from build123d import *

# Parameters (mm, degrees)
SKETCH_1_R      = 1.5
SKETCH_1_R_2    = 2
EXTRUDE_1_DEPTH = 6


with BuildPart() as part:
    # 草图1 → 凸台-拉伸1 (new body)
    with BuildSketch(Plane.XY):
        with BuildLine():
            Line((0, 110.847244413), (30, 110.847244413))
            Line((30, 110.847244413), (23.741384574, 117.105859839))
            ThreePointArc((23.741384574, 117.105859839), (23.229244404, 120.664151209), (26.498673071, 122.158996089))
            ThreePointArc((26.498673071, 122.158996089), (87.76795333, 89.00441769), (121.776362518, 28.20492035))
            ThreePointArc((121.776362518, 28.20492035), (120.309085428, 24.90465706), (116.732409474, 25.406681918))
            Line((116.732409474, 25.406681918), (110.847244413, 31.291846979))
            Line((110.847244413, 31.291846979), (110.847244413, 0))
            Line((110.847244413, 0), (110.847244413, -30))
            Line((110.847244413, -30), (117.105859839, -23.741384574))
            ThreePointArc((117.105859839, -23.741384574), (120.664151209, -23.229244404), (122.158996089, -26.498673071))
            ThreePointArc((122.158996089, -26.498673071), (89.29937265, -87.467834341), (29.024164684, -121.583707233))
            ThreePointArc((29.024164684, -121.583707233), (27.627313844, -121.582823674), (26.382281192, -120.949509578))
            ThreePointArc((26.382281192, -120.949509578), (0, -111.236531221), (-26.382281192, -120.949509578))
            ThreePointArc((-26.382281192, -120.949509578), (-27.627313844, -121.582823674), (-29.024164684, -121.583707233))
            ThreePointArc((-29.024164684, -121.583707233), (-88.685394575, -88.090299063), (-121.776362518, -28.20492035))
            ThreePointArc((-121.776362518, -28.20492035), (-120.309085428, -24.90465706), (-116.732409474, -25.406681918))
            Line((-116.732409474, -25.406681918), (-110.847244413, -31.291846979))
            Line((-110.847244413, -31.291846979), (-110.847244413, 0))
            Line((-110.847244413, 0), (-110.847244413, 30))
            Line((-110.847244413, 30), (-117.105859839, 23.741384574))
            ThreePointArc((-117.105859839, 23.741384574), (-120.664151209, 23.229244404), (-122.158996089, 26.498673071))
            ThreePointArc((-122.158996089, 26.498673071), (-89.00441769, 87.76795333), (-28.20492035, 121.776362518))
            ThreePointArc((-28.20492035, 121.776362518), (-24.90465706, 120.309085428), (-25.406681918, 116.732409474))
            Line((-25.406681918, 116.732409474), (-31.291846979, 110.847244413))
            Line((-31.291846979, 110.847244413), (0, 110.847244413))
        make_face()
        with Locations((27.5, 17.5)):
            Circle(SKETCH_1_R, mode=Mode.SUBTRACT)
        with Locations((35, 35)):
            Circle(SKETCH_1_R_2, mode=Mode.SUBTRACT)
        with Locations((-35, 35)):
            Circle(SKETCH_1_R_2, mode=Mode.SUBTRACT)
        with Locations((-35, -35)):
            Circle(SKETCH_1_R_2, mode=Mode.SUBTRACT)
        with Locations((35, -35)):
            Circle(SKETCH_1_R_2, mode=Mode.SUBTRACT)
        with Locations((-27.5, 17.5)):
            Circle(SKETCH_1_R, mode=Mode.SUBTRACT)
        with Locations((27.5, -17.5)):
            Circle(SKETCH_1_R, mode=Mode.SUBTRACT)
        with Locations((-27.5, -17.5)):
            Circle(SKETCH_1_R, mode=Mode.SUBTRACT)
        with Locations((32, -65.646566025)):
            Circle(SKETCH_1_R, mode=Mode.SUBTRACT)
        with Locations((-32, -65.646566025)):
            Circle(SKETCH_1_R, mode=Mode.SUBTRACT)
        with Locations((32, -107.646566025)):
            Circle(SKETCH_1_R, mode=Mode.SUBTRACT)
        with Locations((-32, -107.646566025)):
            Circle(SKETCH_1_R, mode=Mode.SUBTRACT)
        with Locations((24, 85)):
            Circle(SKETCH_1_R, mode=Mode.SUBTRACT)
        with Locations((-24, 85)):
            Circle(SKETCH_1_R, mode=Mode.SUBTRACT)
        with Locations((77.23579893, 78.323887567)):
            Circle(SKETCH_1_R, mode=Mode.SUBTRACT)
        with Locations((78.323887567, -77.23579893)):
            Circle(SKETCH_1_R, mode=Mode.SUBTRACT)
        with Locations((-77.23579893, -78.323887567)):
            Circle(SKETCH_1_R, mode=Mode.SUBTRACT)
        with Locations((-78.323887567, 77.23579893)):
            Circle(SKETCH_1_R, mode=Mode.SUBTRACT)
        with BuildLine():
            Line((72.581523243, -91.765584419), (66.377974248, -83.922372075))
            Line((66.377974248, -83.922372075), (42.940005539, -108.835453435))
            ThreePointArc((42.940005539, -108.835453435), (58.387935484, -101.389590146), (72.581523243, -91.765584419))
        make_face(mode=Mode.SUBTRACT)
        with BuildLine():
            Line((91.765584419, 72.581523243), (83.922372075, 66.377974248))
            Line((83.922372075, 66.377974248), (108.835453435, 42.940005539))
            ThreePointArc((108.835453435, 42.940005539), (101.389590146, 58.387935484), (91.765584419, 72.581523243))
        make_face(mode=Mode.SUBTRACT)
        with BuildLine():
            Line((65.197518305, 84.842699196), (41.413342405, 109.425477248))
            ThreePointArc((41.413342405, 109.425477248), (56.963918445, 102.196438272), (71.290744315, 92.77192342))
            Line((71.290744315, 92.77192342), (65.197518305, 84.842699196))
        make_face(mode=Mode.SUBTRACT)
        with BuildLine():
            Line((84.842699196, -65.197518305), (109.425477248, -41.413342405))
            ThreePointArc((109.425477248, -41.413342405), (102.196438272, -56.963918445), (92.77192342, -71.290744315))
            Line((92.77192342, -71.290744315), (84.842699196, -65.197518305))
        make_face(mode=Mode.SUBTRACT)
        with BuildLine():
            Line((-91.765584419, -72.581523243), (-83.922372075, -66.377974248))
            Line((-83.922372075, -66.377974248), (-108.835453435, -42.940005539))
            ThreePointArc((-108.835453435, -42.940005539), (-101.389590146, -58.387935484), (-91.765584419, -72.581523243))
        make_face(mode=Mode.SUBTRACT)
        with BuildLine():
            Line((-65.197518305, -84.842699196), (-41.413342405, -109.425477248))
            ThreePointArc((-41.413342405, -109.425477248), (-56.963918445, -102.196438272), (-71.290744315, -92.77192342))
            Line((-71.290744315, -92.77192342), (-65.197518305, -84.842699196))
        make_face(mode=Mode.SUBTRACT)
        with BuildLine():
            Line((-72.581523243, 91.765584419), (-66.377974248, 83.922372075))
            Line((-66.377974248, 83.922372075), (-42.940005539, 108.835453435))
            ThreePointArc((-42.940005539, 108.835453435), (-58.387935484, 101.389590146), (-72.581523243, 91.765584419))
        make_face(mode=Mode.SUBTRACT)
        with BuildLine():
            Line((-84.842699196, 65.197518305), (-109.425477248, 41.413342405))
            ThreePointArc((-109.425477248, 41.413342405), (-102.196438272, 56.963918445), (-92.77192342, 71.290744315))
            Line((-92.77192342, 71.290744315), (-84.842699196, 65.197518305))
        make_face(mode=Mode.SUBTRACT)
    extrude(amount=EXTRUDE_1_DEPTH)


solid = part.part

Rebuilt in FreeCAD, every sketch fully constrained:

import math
import FreeCAD as App
import Part
import Sketcher
from FreeCAD import Vector
Q = App.Units.Quantity

doc = App.newDocument("Part")
body = doc.addObject("PartDesign::Body", "Body")

# Sketch on XY plane
sketch1 = body.newObject("Sketcher::SketchObject", "Sketch")
sketch1.AttachmentSupport = (doc.getObject("XY_Plane"), [""])
sketch1.MapMode = "FlatFace"
sketch1.addGeometry(Part.LineSegment(Vector(23.7, 117.1, 0), Vector(30, 110.8, 0)), False)
sketch1.addGeometry(Part.LineSegment(Vector(30, 110.8, 0), Vector(-31.3, 110.8, 0)), False)
sketch1.addGeometry(Part.LineSegment(Vector(-31.3, 110.8, 0), Vector(-25.4, 116.7, 0)), False)
sketch1.addGeometry(Part.ArcOfCircle(Part.Circle(Vector(-27.5, 118.9, 0), Vector(0, 0, 1), 3), math.radians(-45), math.radians(103)), False)
sketch1.addGeometry(Part.ArcOfCircle(Part.Circle(Vector(0, 0, 0), Vector(0, 0, 1), 125), math.radians(103), math.radians(168)), False)
sketch1.addGeometry(Part.ArcOfCircle(Part.Circle(Vector(-119.2, 25.9, 0), Vector(0, 0, 1), 3), math.radians(168), math.radians(315)), False)
sketch1.addGeometry(Part.LineSegment(Vector(-117.1, 23.7, 0), Vector(-110.8, 30, 0)), False)
sketch1.addGeometry(Part.LineSegment(Vector(-110.8, 30, 0), Vector(-110.8, -31.3, 0)), False)
sketch1.addGeometry(Part.LineSegment(Vector(-110.8, -31.3, 0), Vector(-116.7, -25.4, 0)), False)
sketch1.addGeometry(Part.ArcOfCircle(Part.Circle(Vector(-118.9, -27.5, 0), Vector(0, 0, 1), 3), math.radians(45), math.radians(193)), False)
sketch1.addGeometry(Part.ArcOfCircle(Part.Circle(Vector(0, 0, 0), Vector(0, 0, 1), 125), math.radians(-167), math.radians(-103)), False)
sketch1.addGeometry(Part.ArcOfCircle(Part.Circle(Vector(-28.3, -118.7, 0), Vector(0, 0, 1), 3), math.radians(-103), math.radians(-50)), False)
sketch1.addGeometry(Part.ArcOfCircle(Part.Circle(Vector(0, -151.9, 0), Vector(0, 0, 1), 40.7), math.radians(50), math.radians(130)), False)
sketch1.addGeometry(Part.ArcOfCircle(Part.Circle(Vector(28.3, -118.7, 0), Vector(0, 0, 1), 3), math.radians(-130), math.radians(-77)), False)
sketch1.addGeometry(Part.ArcOfCircle(Part.Circle(Vector(0, 0, 0), Vector(0, 0, 1), 125), math.radians(-77), math.radians(-12)), False)
sketch1.addGeometry(Part.ArcOfCircle(Part.Circle(Vector(119.2, -25.9, 0), Vector(0, 0, 1), 3), math.radians(-12), math.radians(135)), False)
sketch1.addGeometry(Part.LineSegment(Vector(117.1, -23.7, 0), Vector(110.8, -30, 0)), False)
sketch1.addGeometry(Part.LineSegment(Vector(110.8, -30, 0), Vector(110.8, 31.3, 0)), False)
sketch1.addGeometry(Part.LineSegment(Vector(110.8, 31.3, 0), Vector(116.7, 25.4, 0)), False)
sketch1.addGeometry(Part.ArcOfCircle(Part.Circle(Vector(118.9, 27.5, 0), Vector(0, 0, 1), 3), math.radians(-135), math.radians(13)), False)
sketch1.addGeometry(Part.ArcOfCircle(Part.Circle(Vector(0, 0, 0), Vector(0, 0, 1), 125), math.radians(13), math.radians(78)), False)
sketch1.addGeometry(Part.ArcOfCircle(Part.Circle(Vector(25.9, 119.2, 0), Vector(0, 0, 1), 3), math.radians(78), math.radians(225)), False)
sketch1.addGeometry(Part.ArcOfCircle(Part.Circle(Vector(0, 0, 0), Vector(0, 0, 1), 117), math.radians(-68.47), math.radians(-51.66)), False)
sketch1.addGeometry(Part.LineSegment(Vector(42.9, -108.8, 0), Vector(66.4, -83.9, 0)), False)
sketch1.addGeometry(Part.LineSegment(Vector(66.4, -83.9, 0), Vector(72.6, -91.8, 0)), False)
sketch1.addGeometry(Part.LineSegment(Vector(84.8, -65.2, 0), Vector(109.4, -41.4, 0)), False)
sketch1.addGeometry(Part.ArcOfCircle(Part.Circle(Vector(0, 0, 0), Vector(0, 0, 1), 117), math.radians(-37.54), math.radians(-20.73)), False)
sketch1.addGeometry(Part.LineSegment(Vector(92.8, -71.3, 0), Vector(84.8, -65.2, 0)), False)
sketch1.addGeometry(Part.Circle(Vector(78.3, -77.2, 0), Vector(0, 0, 1), 1.5), False)
sketch1.addGeometry(Part.Circle(Vector(32, -107.6, 0), Vector(0, 0, 1), 1.5), False)
sketch1.addGeometry(Part.Circle(Vector(32, -65.6, 0), Vector(0, 0, 1), 1.5), False)
sketch1.addGeometry(Part.Circle(Vector(35, -35, 0), Vector(0, 0, 1), 2), False)
sketch1.addGeometry(Part.Circle(Vector(27.5, -17.5, 0), Vector(0, 0, 1), 1.5), False)
sketch1.addGeometry(Part.Circle(Vector(-32, -107.6, 0), Vector(0, 0, 1), 1.5), False)
sketch1.addGeometry(Part.Circle(Vector(-32, -65.6, 0), Vector(0, 0, 1), 1.5), False)
sketch1.addGeometry(Part.LineSegment(Vector(-65.2, -84.8, 0), Vector(-41.4, -109.4, 0)), False)
sketch1.addGeometry(Part.ArcOfCircle(Part.Circle(Vector(0, 0, 0), Vector(0, 0, 1), 117), math.radians(-127.54), math.radians(-110.73)), False)
sketch1.addGeometry(Part.LineSegment(Vector(-71.3, -92.8, 0), Vector(-65.2, -84.8, 0)), False)
sketch1.addGeometry(Part.Circle(Vector(-77.2, -78.3, 0), Vector(0, 0, 1), 1.5), False)
sketch1.addGeometry(Part.ArcOfCircle(Part.Circle(Vector(0, 0, 0), Vector(0, 0, 1), 117), math.radians(-158.47), math.radians(-141.66)), False)
sketch1.addGeometry(Part.LineSegment(Vector(-108.8, -42.9, 0), Vector(-83.9, -66.4, 0)), False)
sketch1.addGeometry(Part.LineSegment(Vector(-83.9, -66.4, 0), Vector(-91.8, -72.6, 0)), False)
sketch1.addGeometry(Part.Circle(Vector(-35, -35, 0), Vector(0, 0, 1), 2), False)
sketch1.addGeometry(Part.Circle(Vector(-27.5, -17.5, 0), Vector(0, 0, 1), 1.5), False)
sketch1.addGeometry(Part.Circle(Vector(27.5, 17.5, 0), Vector(0, 0, 1), 1.5), False)
sketch1.addGeometry(Part.Circle(Vector(35, 35, 0), Vector(0, 0, 1), 2), False)
sketch1.addGeometry(Part.ArcOfCircle(Part.Circle(Vector(0, 0, 0), Vector(0, 0, 1), 117), math.radians(21.53), math.radians(38.34)), False)
sketch1.addGeometry(Part.LineSegment(Vector(108.8, 42.9, 0), Vector(83.9, 66.4, 0)), False)
sketch1.addGeometry(Part.LineSegment(Vector(83.9, 66.4, 0), Vector(91.8, 72.6, 0)), False)
sketch1.addGeometry(Part.Circle(Vector(77.2, 78.3, 0), Vector(0, 0, 1), 1.5), False)
sketch1.addGeometry(Part.LineSegment(Vector(65.2, 84.8, 0), Vector(41.4, 109.4, 0)), False)
sketch1.addGeometry(Part.ArcOfCircle(Part.Circle(Vector(0, 0, 0), Vector(0, 0, 1), 117), math.radians(52.46), math.radians(69.27)), False)
sketch1.addGeometry(Part.LineSegment(Vector(71.3, 92.8, 0), Vector(65.2, 84.8, 0)), False)
sketch1.addGeometry(Part.Circle(Vector(24, 85, 0), Vector(0, 0, 1), 1.5), False)
sketch1.addGeometry(Part.Circle(Vector(-27.5, 17.5, 0), Vector(0, 0, 1), 1.5), False)
sketch1.addGeometry(Part.Circle(Vector(-35, 35, 0), Vector(0, 0, 1), 2), False)
sketch1.addGeometry(Part.Circle(Vector(-24, 85, 0), Vector(0, 0, 1), 1.5), False)
sketch1.addGeometry(Part.Circle(Vector(-78.3, 77.2, 0), Vector(0, 0, 1), 1.5), False)
sketch1.addGeometry(Part.LineSegment(Vector(-84.8, 65.2, 0), Vector(-109.4, 41.4, 0)), False)
sketch1.addGeometry(Part.ArcOfCircle(Part.Circle(Vector(0, 0, 0), Vector(0, 0, 1), 117), math.radians(142.46), math.radians(159.27)), False)
sketch1.addGeometry(Part.LineSegment(Vector(-92.8, 71.3, 0), Vector(-84.8, 65.2, 0)), False)
sketch1.addGeometry(Part.ArcOfCircle(Part.Circle(Vector(0, 0, 0), Vector(0, 0, 1), 117), math.radians(111.53), math.radians(128.34)), False)
sketch1.addGeometry(Part.LineSegment(Vector(-42.9, 108.8, 0), Vector(-66.4, 83.9, 0)), False)
sketch1.addGeometry(Part.LineSegment(Vector(-66.4, 83.9, 0), Vector(-72.6, 91.8, 0)), False)
sketch1.addConstraint(Sketcher.Constraint("Coincident", 0, 2, 1, 1))
sketch1.addConstraint(Sketcher.Constraint("Coincident", 1, 2, 2, 1))
sketch1.addConstraint(Sketcher.Constraint("Tangent", 2, 2, 3, 1))
sketch1.addConstraint(Sketcher.Constraint("Tangent", 3, 2, 4, 1))
sketch1.addConstraint(Sketcher.Constraint("Tangent", 4, 2, 5, 1))
sketch1.addConstraint(Sketcher.Constraint("Tangent", 5, 2, 6, 1))
sketch1.addConstraint(Sketcher.Constraint("Coincident", 6, 2, 7, 1))
sketch1.addConstraint(Sketcher.Constraint("Coincident", 7, 2, 8, 1))
sketch1.addConstraint(Sketcher.Constraint("Tangent", 8, 2, 9, 1))
sketch1.addConstraint(Sketcher.Constraint("Tangent", 9, 2, 10, 1))
sketch1.addConstraint(Sketcher.Constraint("Tangent", 10, 2, 11, 1))
sketch1.addConstraint(Sketcher.Constraint("Tangent", 11, 2, 12, 2))
sketch1.addConstraint(Sketcher.Constraint("Tangent", 12, 1, 13, 1))
sketch1.addConstraint(Sketcher.Constraint("Tangent", 13, 2, 14, 1))
sketch1.addConstraint(Sketcher.Constraint("Tangent", 14, 2, 15, 1))
sketch1.addConstraint(Sketcher.Constraint("Tangent", 15, 2, 16, 1))
sketch1.addConstraint(Sketcher.Constraint("Coincident", 16, 2, 17, 1))
sketch1.addConstraint(Sketcher.Constraint("Coincident", 17, 2, 18, 1))
sketch1.addConstraint(Sketcher.Constraint("Tangent", 18, 2, 19, 1))
sketch1.addConstraint(Sketcher.Constraint("Tangent", 19, 2, 20, 1))
sketch1.addConstraint(Sketcher.Constraint("Tangent", 20, 2, 21, 1))
sketch1.addConstraint(Sketcher.Constraint("Tangent", 21, 2, 0, 1))
sketch1.addConstraint(Sketcher.Constraint("Coincident", 22, 1, 23, 1))
sketch1.addConstraint(Sketcher.Constraint("Coincident", 23, 2, 24, 1))
sketch1.addConstraint(Sketcher.Constraint("Coincident", 24, 2, 22, 2))
sketch1.addConstraint(Sketcher.Constraint("Coincident", 25, 2, 26, 2))
sketch1.addConstraint(Sketcher.Constraint("Coincident", 26, 1, 27, 1))
sketch1.addConstraint(Sketcher.Constraint("Coincident", 27, 2, 25, 1))
sketch1.addConstraint(Sketcher.Constraint("Coincident", 35, 2, 36, 2))
sketch1.addConstraint(Sketcher.Constraint("Coincident", 36, 1, 37, 1))
sketch1.addConstraint(Sketcher.Constraint("Coincident", 37, 2, 35, 1))
sketch1.addConstraint(Sketcher.Constraint("Coincident", 39, 1, 40, 1))
sketch1.addConstraint(Sketcher.Constraint("Coincident", 40, 2, 41, 1))
sketch1.addConstraint(Sketcher.Constraint("Coincident", 41, 2, 39, 2))
sketch1.addConstraint(Sketcher.Constraint("Coincident", 46, 1, 47, 1))
sketch1.addConstraint(Sketcher.Constraint("Coincident", 47, 2, 48, 1))
sketch1.addConstraint(Sketcher.Constraint("Coincident", 48, 2, 46, 2))
sketch1.addConstraint(Sketcher.Constraint("Coincident", 50, 2, 51, 2))
sketch1.addConstraint(Sketcher.Constraint("Coincident", 51, 1, 52, 1))
sketch1.addConstraint(Sketcher.Constraint("Coincident", 52, 2, 50, 1))
sketch1.addConstraint(Sketcher.Constraint("Coincident", 58, 2, 59, 2))
sketch1.addConstraint(Sketcher.Constraint("Coincident", 59, 1, 60, 1))
sketch1.addConstraint(Sketcher.Constraint("Coincident", 60, 2, 58, 1))
sketch1.addConstraint(Sketcher.Constraint("Coincident", 61, 1, 62, 1))
sketch1.addConstraint(Sketcher.Constraint("Coincident", 62, 2, 63, 1))
sketch1.addConstraint(Sketcher.Constraint("Coincident", 63, 2, 61, 2))
sketch1.addConstraint(Sketcher.Constraint("Horizontal", 1))
sketch1.addConstraint(Sketcher.Constraint("Vertical", 7))
sketch1.addConstraint(Sketcher.Constraint("Vertical", 17))
sketch1.addConstraint(Sketcher.Constraint("Coincident", 4, 3, -1, 1))
sketch1.addConstraint(Sketcher.Constraint("Coincident", 10, 3, -1, 1))
sketch1.addConstraint(Sketcher.Constraint("Coincident", 14, 3, -1, 1))
sketch1.addConstraint(Sketcher.Constraint("Coincident", 20, 3, -1, 1))
sketch1.addConstraint(Sketcher.Constraint("Coincident", 22, 3, -1, 1))
sketch1.addConstraint(Sketcher.Constraint("Coincident", 26, 3, -1, 1))
sketch1.addConstraint(Sketcher.Constraint("Coincident", 36, 3, -1, 1))
sketch1.addConstraint(Sketcher.Constraint("Coincident", 39, 3, -1, 1))
sketch1.addConstraint(Sketcher.Constraint("Coincident", 46, 3, -1, 1))
sketch1.addConstraint(Sketcher.Constraint("Coincident", 51, 3, -1, 1))
sketch1.addConstraint(Sketcher.Constraint("Coincident", 59, 3, -1, 1))
sketch1.addConstraint(Sketcher.Constraint("Coincident", 61, 3, -1, 1))
sketch1.addConstraint(Sketcher.Constraint("Equal", 3, 5))
sketch1.addConstraint(Sketcher.Constraint("Equal", 5, 9))
sketch1.addConstraint(Sketcher.Constraint("Equal", 4, 10))
sketch1.addConstraint(Sketcher.Constraint("Equal", 9, 11))
sketch1.addConstraint(Sketcher.Constraint("Equal", 11, 13))
sketch1.addConstraint(Sketcher.Constraint("Equal", 10, 14))
sketch1.addConstraint(Sketcher.Constraint("Equal", 13, 15))
sketch1.addConstraint(Sketcher.Constraint("Equal", 15, 19))
sketch1.addConstraint(Sketcher.Constraint("Equal", 14, 20))
sketch1.addConstraint(Sketcher.Constraint("Equal", 19, 21))
sketch1.addConstraint(Sketcher.Constraint("Equal", 22, 26))
sketch1.addConstraint(Sketcher.Constraint("Equal", 28, 29))
sketch1.addConstraint(Sketcher.Constraint("Equal", 29, 30))
sketch1.addConstraint(Sketcher.Constraint("Equal", 30, 32))
sketch1.addConstraint(Sketcher.Constraint("Equal", 32, 33))
sketch1.addConstraint(Sketcher.Constraint("Equal", 33, 34))
sketch1.addConstraint(Sketcher.Constraint("Equal", 26, 36))
sketch1.addConstraint(Sketcher.Constraint("Equal", 34, 38))
sketch1.addConstraint(Sketcher.Constraint("Equal", 36, 39))
sketch1.addConstraint(Sketcher.Constraint("Equal", 31, 42))
sketch1.addConstraint(Sketcher.Constraint("Equal", 38, 43))
sketch1.addConstraint(Sketcher.Constraint("Equal", 43, 44))
sketch1.addConstraint(Sketcher.Constraint("Equal", 42, 45))
sketch1.addConstraint(Sketcher.Constraint("Equal", 39, 46))
sketch1.addConstraint(Sketcher.Constraint("Equal", 44, 49))
sketch1.addConstraint(Sketcher.Constraint("Equal", 46, 51))
sketch1.addConstraint(Sketcher.Constraint("Equal", 49, 53))
sketch1.addConstraint(Sketcher.Constraint("Equal", 53, 54))
sketch1.addConstraint(Sketcher.Constraint("Equal", 45, 55))
sketch1.addConstraint(Sketcher.Constraint("Equal", 54, 56))
sketch1.addConstraint(Sketcher.Constraint("Equal", 56, 57))
sketch1.addConstraint(Sketcher.Constraint("Equal", 51, 59))
sketch1.addConstraint(Sketcher.Constraint("Equal", 59, 61))
sketch1.addConstraint(Sketcher.Constraint("Symmetric", 43, 3, 44, 3, -1, 1))
sketch1.addConstraint(Sketcher.Constraint("Symmetric", 42, 3, 45, 3, -1, 1))
sketch1.addConstraint(Sketcher.Constraint("Symmetric", 38, 3, 49, 3, -1, 1))
sketch1.addConstraint(Sketcher.Constraint("Symmetric", 32, 3, 54, 3, -1, 1))
sketch1.addConstraint(Sketcher.Constraint("Symmetric", 31, 3, 55, 3, -1, 1))
sketch1.addConstraint(Sketcher.Constraint("Symmetric", 28, 3, 57, 3, -1, 1))
sketch1.addConstraint(Sketcher.Constraint("Symmetric", 5, 2, 15, 2, -1, 1))
sketch1.addConstraint(Sketcher.Constraint("Symmetric", 7, 2, 17, 2, -1, 1))
sketch1.addConstraint(Sketcher.Constraint("Symmetric", 40, 2, 47, 2, -1, 1))
sketch1.addConstraint(Sketcher.Constraint("Symmetric", 37, 2, 52, 2, -1, 1))
sketch1.addConstraint(Sketcher.Constraint("Symmetric", 27, 2, 60, 2, -1, 1))
sketch1.addConstraint(Sketcher.Constraint("Symmetric", 23, 2, 62, 2, -1, 1))
sketch1.addConstraint(Sketcher.Constraint("Symmetric", 29, 3, 33, 3, -2))
sketch1.addConstraint(Sketcher.Constraint("Symmetric", 30, 3, 34, 3, -2))
sketch1.addConstraint(Sketcher.Constraint("Symmetric", 31, 3, 42, 3, -2))
sketch1.addConstraint(Sketcher.Constraint("Symmetric", 32, 3, 43, 3, -2))
sketch1.addConstraint(Sketcher.Constraint("Symmetric", 53, 3, 56, 3, -2))
sketch1.addConstraint(Sketcher.Constraint("PointOnObject", 12, 3, -2))
sketch1.addConstraint(Sketcher.Constraint("Perpendicular", 0, 2))
sketch1.addConstraint(Sketcher.Constraint("Parallel", 2, 6))
sketch1.addConstraint(Sketcher.Constraint("Perpendicular", 6, 8))
sketch1.addConstraint(Sketcher.Constraint("Perpendicular", 16, 18))
sketch1.addConstraint(Sketcher.Constraint("Perpendicular", 25, 35))
sketch1.addConstraint(Sketcher.Constraint("Perpendicular", 27, 37))
sketch1.addConstraint(Sketcher.Constraint("Perpendicular", 23, 40))
sketch1.addConstraint(Sketcher.Constraint("Perpendicular", 24, 41))
sketch1.addConstraint(Sketcher.Constraint("Parallel", 40, 47))
sketch1.addConstraint(Sketcher.Constraint("Parallel", 41, 48))
sketch1.addConstraint(Sketcher.Constraint("Parallel", 35, 50))
sketch1.addConstraint(Sketcher.Constraint("Parallel", 37, 52))
sketch1.addConstraint(Sketcher.Constraint("Perpendicular", 50, 58))
sketch1.addConstraint(Sketcher.Constraint("Perpendicular", 52, 60))
sketch1.addConstraint(Sketcher.Constraint("Perpendicular", 47, 62))
sketch1.addConstraint(Sketcher.Constraint("Perpendicular", 48, 63))
sketch1.addConstraint(Sketcher.Constraint("Vertical", 29, 3, 30, 3))
sketch1.addConstraint(Sketcher.Constraint("Equal", 1, 7))
sketch1.addConstraint(Sketcher.Constraint("Equal", 0, 6))
sketch1.addConstraint(Sketcher.Constraint("Equal", 2, 8))
sketch1.addConstraint(Sketcher.Constraint("Equal", 23, 25))
sketch1.addConstraint(Sketcher.Constraint("Equal", 24, 27))
sketch1.addConstraint(Sketcher.Constraint("Equal", 25, 35))
sketch1.addConstraint(Sketcher.Constraint("Equal", 27, 37))
sketch1.addConstraint(Sketcher.Constraint("Equal", 35, 40))
sketch1.addConstraint(Sketcher.Constraint("Equal", 37, 41))
sketch1.addConstraint(Sketcher.Constraint("Diameter", 28, 3.0))
sketch1.addConstraint(Sketcher.Constraint("Diameter", 31, 4.0))
sketch1.addConstraint(Sketcher.Constraint("Radius", 3, 3.0))
sketch1.addConstraint(Sketcher.Constraint("Radius", 4, 125.0))
sketch1.addConstraint(Sketcher.Constraint("Radius", 22, 117.0))
sketch1.addConstraint(Sketcher.Constraint("Angle", 0, Q("-45 deg")))
sketch1.addConstraint(Sketcher.Constraint("Distance", 24, 10.0))
sketch1.addConstraint(Sketcher.Constraint("DistanceX", -1, 1, 29, 3, 32.0))
sketch1.addConstraint(Sketcher.Constraint("DistanceX", -1, 1, 31, 3, 35.0))
sketch1.addConstraint(Sketcher.Constraint("DistanceY", 31, 3, -1, 1, 35.0))
sketch1.addConstraint(Sketcher.Constraint("DistanceX", -1, 1, 53, 3, 24.0))
sketch1.addConstraint(Sketcher.Constraint("DistanceY", -1, 1, 53, 3, 85.0))
sketch1.addConstraint(Sketcher.Constraint("DistanceX", -1, 1, 0, 2, 30.0))
sketch1.addConstraint(Sketcher.Constraint("DistanceX", -1, 1, 32, 3, 27.5))
sketch1.addConstraint(Sketcher.Constraint("DistanceY", 32, 3, -1, 1, 17.5))
sketch1.addConstraint(Sketcher.Constraint("Radius", 12, 40.686115))
sketch1.addConstraint(Sketcher.Constraint("DistanceY", 11, 3, -1, 1, 118.665698))
sketch1.addConstraint(Sketcher.Constraint("DistanceY", 28, 3, -1, 1, 77.235799))
sketch1.addConstraint(Sketcher.Constraint("DistanceX", 38, 3, -1, 1, 77.235799))
sketch1.addConstraint(Sketcher.Constraint("DistanceX", -1, 1, 27, 2, 84.842699))
sketch1.addConstraint(Sketcher.Constraint("Distance", 0, 8.851019))
sketch1.addConstraint(Sketcher.Constraint("Distance", 2, 8.32288))
sketch1.addConstraint(Sketcher.Constraint("Distance", 23, 34.205263))
sketch1.addConstraint(Sketcher.Constraint("DistanceX", -1, 1, 28, 3, 78.323888))
sketch1.addConstraint(Sketcher.Constraint("DistanceY", 29, 3, -1, 1, 107.646566))
sketch1.addConstraint(Sketcher.Constraint("DistanceY", 30, 3, -1, 1, 65.646566))
sketch1.addConstraint(Sketcher.Constraint("DistanceY", 38, 3, -1, 1, 78.323888))
sketch1.addConstraint(Sketcher.Constraint("DistanceX", -1, 1, 22, 1, 42.940006))
sketch1.addConstraint(Sketcher.Constraint("DistanceX", -1, 1, 24, 2, 72.581523))
sketch1.addConstraint(Sketcher.Constraint("DistanceX", -1, 1, 26, 1, 92.771923))
pad1 = body.newObject("PartDesign::Pad", "Pad")
pad1.Profile = sketch1
pad1.Length = 6

doc.recompute()
